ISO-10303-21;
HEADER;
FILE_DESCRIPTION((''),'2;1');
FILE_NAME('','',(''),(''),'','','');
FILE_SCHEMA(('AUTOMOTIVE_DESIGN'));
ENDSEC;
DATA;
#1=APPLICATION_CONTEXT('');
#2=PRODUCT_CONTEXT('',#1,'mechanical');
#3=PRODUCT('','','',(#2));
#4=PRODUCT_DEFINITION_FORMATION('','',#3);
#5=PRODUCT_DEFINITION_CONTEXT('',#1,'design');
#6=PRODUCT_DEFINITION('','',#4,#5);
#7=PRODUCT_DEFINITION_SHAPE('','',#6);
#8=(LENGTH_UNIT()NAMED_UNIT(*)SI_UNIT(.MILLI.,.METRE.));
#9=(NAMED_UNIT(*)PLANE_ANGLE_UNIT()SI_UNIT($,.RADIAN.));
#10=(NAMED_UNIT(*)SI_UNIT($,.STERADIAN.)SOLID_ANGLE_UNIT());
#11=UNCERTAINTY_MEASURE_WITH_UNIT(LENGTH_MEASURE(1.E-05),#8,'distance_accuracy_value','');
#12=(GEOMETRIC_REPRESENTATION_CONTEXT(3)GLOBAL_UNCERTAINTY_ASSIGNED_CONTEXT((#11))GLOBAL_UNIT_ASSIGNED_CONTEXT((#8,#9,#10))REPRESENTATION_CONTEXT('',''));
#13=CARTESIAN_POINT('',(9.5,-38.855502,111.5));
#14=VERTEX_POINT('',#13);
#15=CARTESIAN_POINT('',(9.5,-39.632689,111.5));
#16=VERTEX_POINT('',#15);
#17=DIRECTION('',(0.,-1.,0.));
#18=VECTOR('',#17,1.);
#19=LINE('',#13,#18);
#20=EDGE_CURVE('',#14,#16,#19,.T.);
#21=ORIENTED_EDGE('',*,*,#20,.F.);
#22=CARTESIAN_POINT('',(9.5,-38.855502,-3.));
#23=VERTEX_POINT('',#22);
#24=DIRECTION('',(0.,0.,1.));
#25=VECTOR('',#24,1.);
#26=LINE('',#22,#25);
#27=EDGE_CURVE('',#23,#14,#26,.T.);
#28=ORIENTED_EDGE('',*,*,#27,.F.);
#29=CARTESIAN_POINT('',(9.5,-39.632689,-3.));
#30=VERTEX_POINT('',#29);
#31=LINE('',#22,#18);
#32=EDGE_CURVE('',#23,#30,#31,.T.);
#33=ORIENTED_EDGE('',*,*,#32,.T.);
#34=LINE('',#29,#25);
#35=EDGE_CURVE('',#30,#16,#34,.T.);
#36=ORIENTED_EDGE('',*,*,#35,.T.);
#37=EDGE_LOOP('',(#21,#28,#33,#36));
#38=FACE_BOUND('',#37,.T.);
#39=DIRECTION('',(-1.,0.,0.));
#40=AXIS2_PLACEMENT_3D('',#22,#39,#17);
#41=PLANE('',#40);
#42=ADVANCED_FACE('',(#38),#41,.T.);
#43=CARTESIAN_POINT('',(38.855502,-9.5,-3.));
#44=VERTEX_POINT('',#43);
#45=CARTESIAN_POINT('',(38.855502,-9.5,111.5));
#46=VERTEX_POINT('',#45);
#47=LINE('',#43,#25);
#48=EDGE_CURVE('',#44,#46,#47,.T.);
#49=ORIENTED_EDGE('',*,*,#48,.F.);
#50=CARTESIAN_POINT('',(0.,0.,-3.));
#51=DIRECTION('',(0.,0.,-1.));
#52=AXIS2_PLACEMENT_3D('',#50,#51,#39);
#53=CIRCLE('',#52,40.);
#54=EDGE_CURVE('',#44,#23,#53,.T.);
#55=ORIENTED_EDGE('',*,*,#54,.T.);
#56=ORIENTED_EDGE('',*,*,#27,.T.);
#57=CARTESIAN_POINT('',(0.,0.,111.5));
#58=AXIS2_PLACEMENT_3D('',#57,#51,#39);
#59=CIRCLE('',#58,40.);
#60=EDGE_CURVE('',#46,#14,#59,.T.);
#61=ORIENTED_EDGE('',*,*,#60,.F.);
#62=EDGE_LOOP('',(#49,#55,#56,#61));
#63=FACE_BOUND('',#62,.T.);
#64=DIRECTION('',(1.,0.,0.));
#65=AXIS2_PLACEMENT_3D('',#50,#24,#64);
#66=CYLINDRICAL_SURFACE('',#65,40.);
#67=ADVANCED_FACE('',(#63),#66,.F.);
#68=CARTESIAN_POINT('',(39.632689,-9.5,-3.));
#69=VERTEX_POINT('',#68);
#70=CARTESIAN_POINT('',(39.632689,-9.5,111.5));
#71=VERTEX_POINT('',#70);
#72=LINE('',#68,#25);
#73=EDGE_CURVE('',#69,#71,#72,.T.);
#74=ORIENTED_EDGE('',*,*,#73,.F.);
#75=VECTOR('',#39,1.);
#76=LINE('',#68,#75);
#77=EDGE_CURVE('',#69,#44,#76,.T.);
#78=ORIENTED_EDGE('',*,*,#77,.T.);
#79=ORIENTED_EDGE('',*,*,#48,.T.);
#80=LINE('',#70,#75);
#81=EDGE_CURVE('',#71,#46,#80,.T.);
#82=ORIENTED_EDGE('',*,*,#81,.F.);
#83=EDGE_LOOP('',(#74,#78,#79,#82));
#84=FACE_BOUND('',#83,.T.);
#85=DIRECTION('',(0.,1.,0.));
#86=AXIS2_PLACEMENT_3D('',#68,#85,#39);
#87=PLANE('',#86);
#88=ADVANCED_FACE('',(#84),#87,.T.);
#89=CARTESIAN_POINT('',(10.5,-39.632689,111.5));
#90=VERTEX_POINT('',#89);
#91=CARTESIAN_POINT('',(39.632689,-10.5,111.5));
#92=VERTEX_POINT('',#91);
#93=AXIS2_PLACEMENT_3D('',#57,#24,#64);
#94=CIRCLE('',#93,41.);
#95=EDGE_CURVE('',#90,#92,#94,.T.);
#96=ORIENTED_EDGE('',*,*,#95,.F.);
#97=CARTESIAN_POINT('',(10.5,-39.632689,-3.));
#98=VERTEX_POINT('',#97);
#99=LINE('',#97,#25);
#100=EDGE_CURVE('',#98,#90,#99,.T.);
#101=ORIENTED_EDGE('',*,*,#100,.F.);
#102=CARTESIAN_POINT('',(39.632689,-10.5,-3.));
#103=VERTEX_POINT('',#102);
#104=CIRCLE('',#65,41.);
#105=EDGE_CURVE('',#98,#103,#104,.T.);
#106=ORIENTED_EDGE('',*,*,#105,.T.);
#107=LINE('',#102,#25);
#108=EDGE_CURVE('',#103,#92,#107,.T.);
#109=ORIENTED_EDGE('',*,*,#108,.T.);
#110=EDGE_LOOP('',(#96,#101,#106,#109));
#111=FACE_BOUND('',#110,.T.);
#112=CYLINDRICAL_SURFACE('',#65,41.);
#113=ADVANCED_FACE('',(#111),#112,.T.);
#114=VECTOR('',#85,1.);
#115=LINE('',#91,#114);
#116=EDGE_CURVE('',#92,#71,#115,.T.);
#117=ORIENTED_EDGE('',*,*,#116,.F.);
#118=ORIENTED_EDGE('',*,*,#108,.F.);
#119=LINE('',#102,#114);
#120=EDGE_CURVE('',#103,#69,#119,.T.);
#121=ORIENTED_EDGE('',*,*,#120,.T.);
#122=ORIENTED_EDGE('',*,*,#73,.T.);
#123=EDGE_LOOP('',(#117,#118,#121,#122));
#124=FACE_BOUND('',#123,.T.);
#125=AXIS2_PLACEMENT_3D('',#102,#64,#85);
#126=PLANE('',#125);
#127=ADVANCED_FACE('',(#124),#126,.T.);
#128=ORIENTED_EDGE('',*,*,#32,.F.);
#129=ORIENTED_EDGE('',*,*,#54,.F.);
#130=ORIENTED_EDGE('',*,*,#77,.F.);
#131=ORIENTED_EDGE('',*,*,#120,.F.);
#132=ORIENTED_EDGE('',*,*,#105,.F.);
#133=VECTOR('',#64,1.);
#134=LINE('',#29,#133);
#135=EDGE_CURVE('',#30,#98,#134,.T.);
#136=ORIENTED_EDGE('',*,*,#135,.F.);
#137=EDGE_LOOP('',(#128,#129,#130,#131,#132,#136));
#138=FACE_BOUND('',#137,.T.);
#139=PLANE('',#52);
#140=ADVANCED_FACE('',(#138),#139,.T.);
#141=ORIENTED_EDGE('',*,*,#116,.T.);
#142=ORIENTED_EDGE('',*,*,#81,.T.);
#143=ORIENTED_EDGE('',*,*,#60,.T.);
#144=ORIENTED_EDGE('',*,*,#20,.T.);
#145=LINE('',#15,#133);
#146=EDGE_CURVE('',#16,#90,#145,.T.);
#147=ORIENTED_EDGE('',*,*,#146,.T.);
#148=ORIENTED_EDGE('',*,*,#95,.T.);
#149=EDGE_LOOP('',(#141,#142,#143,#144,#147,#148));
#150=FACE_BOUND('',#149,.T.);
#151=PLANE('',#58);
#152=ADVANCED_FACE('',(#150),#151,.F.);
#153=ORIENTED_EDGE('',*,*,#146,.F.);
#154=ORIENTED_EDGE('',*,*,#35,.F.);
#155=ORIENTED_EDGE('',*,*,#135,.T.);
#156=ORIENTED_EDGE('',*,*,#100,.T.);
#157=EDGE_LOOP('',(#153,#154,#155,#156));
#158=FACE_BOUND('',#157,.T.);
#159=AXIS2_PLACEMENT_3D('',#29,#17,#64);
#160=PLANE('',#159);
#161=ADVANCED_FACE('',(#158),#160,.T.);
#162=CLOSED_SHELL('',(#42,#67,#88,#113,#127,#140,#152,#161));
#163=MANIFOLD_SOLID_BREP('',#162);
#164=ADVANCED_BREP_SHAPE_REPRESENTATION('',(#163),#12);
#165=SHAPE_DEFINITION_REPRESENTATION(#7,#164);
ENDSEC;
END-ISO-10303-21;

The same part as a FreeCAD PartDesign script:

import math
import FreeCAD as App
import Part
import Sketcher

V = App.Vector
Q = App.Units.Quantity

doc = App.newDocument("Part")
params = doc.addObject("Spreadsheet::Sheet", "Params")
for row, (alias, value) in enumerate([
    ("sketch1_radius", "41 mm"),
    ("sketch1_radius2", "40 mm"),
    ("sketch1_width", "1 mm"),
    ("pad1_length", "114.5 mm"),
], start=1):
    params.set(f"A{row}", alias)
    params.set(f"B{row}", "=" + value)
    params.setAlias(f"B{row}", alias)

body = doc.addObject("PartDesign::Body", "Body")

sketch1 = body.newObject("Sketcher::SketchObject", "Sketch")
sketch1.AttachmentSupport = (doc.getObject("XY_Plane"), [""])
sketch1.MapMode = "FlatFace"
sketch1.AttachmentOffset = App.Placement(V(0, 0, 111.5), App.Rotation())
sketch1.addGeometry([
    Part.LineSegment(V(9.5, -38.9, 0), V(9.5, -39.6, 0)),
    Part.LineSegment(V(9.5, -39.6, 0), V(10.5, -39.6, 0)),
    Part.ArcOfCircle(Part.Circle(V(0, 0, 0), V(0, 0, 1), 41), math.radians(-75), math.radians(-15)),
    Part.LineSegment(V(39.6, -10.5, 0), V(39.6, -9.5, 0)),
    Part.LineSegment(V(39.6, -9.5, 0), V(38.9, -9.5, 0)),
    Part.ArcOfCircle(Part.Circle(V(0, 0, 0), V(0, 0, 1), 40), math.radians(-76), math.radians(-14)),
], False)
sketch1.addConstraint([
    Sketcher.Constraint("Coincident", 0, 2, 1, 1),
    Sketcher.Constraint("Coincident", 1, 2, 2, 1),
    Sketcher.Constraint("Coincident", 2, 2, 3, 1),
    Sketcher.Constraint("Coincident", 3, 2, 4, 1),
    Sketcher.Constraint("Coincident", 4, 2, 5, 2),
    Sketcher.Constraint("Coincident", 5, 1, 0, 1),
    Sketcher.Constraint("Vertical", 0),
    Sketcher.Constraint("Horizontal", 1),
    Sketcher.Constraint("Vertical", 3),
    Sketcher.Constraint("Horizontal", 4),
    Sketcher.Constraint("Coincident", 2, 3, -1, 1),
    Sketcher.Constraint("Coincident", 5, 3, -1, 1),
    Sketcher.Constraint("Equal", 4, 0),
    Sketcher.Constraint("Equal", 1, 3),
    Sketcher.Constraint("Radius", 2, Q("41 mm")),
    Sketcher.Constraint("Radius", 5, Q("40 mm")),
    Sketcher.Constraint("DistanceX", 1, 1, 1, 2, Q("1 mm")),
    Sketcher.Constraint("DistanceX", -1, 1, 0, 2, Q("9.5 mm")),
])
sketch1.setExpression("Constraints[14]", "Params.sketch1_radius")
sketch1.setExpression("Constraints[15]", "Params.sketch1_radius2")
sketch1.setExpression("Constraints[16]", "Params.sketch1_width")
pad1 = body.newObject("PartDesign::Pad", "Pad")
pad1.Profile = sketch1
pad1.setExpression("Length", "Params.pad1_length")
pad1.Reversed = True

doc.recompute()
